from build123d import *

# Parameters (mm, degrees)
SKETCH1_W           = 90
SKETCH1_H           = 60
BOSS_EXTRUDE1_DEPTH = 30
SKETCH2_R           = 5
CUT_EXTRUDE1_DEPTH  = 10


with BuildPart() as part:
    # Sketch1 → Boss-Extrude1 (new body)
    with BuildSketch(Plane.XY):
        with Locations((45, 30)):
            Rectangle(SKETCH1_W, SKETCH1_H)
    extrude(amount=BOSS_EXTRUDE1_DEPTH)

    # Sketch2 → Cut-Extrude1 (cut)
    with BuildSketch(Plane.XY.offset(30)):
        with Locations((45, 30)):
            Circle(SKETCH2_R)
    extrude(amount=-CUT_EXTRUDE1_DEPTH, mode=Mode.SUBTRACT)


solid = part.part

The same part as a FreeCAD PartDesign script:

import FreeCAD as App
import Part
import Sketcher

V = App.Vector

doc = App.newDocument("Part")
params = doc.addObject("Spreadsheet::Sheet", "Params")
for row, (alias, value) in enumerate([
    ("sketch1_width", "90 mm"),
    ("sketch1_height", "60 mm"),
    ("pad1_length", "30 mm"),
    ("sketch2_diameter", "10 mm"),
    ("pocket1_length", "10 mm"),
], start=1):
    params.set(f"A{row}", alias)
    params.set(f"B{row}", "=" + value)
    params.setAlias(f"B{row}", alias)

body = doc.addObject("PartDesign::Body", "Body")

# Sketch on XY plane
sketch1 = body.newObject("Sketcher::SketchObject", "Sketch")
sketch1.AttachmentSupport = (doc.getObject("XY_Plane"), [""])
sketch1.MapMode = "FlatFace"
sketch1.addGeometry(Part.LineSegment(V(0, 60, 0), V(0, 0, 0)), False)
sketch1.addGeometry(Part.LineSegment(V(0, 0, 0), V(90, 0, 0)), False)
sketch1.addGeometry(Part.LineSegment(V(90, 0, 0), V(90, 60, 0)), False)
sketch1.addGeometry(Part.LineSegment(V(90, 60, 0), V(0, 60, 0)), False)
sketch1.addConstraint(Sketcher.Constraint("Coincident", 0, 2, 1, 1))
sketch1.addConstraint(Sketcher.Constraint("Coincident", 1, 2, 2, 1))
sketch1.addConstraint(Sketcher.Constraint("Coincident", 2, 2, 3, 1))
sketch1.addConstraint(Sketcher.Constraint("Coincident", 3, 2, 0, 1))
sketch1.addConstraint(Sketcher.Constraint("Vertical", 0))
sketch1.addConstraint(Sketcher.Constraint("Horizontal", 1))
sketch1.addConstraint(Sketcher.Constraint("Vertical", 2))
sketch1.addConstraint(Sketcher.Constraint("Horizontal", 3))
sketch1.addConstraint(Sketcher.Constraint("Coincident", 0, 2, -1, 1))
sketch1.addConstraint(Sketcher.Constraint("DistanceX", 1, 1, 1, 2, 90.0))
sketch1.addConstraint(Sketcher.Constraint("DistanceY", 0, 2, 0, 1, 60.0))
sketch1.setExpression("Constraints[9]", "Params.sketch1_width")
sketch1.setExpression("Constraints[10]", "Params.sketch1_height")
pad1 = body.newObject("PartDesign::Pad", "Pad")
pad1.Profile = sketch1
pad1.setExpression("Length", "Params.pad1_length")

# Sketch on XY plane
sketch2 = body.newObject("Sketcher::SketchObject", "Sketch001")
sketch2.AttachmentSupport = (doc.getObject("XY_Plane"), [""])
sketch2.MapMode = "FlatFace"
sketch2.AttachmentOffset = App.Placement(V(0, 0, 30), App.Rotation())
sketch2.addGeometry(Part.Circle(V(45, 30, 0), V(0, 0, 1), 5), False)
sketch2.addConstraint(Sketcher.Constraint("Diameter", 0, 10.0))
sketch2.addConstraint(Sketcher.Constraint("DistanceX", -1, 1, 0, 3, 45.0))
sketch2.addConstraint(Sketcher.Constraint("DistanceY", -1, 1, 0, 3, 30.0))
sketch2.setExpression("Constraints[0]", "Params.sketch2_diameter")
pocket1 = body.newObject("PartDesign::Pocket", "Pocket")
pocket1.Profile = sketch2
pocket1.setExpression("Length", "Params.pocket1_length")

doc.recompute()
